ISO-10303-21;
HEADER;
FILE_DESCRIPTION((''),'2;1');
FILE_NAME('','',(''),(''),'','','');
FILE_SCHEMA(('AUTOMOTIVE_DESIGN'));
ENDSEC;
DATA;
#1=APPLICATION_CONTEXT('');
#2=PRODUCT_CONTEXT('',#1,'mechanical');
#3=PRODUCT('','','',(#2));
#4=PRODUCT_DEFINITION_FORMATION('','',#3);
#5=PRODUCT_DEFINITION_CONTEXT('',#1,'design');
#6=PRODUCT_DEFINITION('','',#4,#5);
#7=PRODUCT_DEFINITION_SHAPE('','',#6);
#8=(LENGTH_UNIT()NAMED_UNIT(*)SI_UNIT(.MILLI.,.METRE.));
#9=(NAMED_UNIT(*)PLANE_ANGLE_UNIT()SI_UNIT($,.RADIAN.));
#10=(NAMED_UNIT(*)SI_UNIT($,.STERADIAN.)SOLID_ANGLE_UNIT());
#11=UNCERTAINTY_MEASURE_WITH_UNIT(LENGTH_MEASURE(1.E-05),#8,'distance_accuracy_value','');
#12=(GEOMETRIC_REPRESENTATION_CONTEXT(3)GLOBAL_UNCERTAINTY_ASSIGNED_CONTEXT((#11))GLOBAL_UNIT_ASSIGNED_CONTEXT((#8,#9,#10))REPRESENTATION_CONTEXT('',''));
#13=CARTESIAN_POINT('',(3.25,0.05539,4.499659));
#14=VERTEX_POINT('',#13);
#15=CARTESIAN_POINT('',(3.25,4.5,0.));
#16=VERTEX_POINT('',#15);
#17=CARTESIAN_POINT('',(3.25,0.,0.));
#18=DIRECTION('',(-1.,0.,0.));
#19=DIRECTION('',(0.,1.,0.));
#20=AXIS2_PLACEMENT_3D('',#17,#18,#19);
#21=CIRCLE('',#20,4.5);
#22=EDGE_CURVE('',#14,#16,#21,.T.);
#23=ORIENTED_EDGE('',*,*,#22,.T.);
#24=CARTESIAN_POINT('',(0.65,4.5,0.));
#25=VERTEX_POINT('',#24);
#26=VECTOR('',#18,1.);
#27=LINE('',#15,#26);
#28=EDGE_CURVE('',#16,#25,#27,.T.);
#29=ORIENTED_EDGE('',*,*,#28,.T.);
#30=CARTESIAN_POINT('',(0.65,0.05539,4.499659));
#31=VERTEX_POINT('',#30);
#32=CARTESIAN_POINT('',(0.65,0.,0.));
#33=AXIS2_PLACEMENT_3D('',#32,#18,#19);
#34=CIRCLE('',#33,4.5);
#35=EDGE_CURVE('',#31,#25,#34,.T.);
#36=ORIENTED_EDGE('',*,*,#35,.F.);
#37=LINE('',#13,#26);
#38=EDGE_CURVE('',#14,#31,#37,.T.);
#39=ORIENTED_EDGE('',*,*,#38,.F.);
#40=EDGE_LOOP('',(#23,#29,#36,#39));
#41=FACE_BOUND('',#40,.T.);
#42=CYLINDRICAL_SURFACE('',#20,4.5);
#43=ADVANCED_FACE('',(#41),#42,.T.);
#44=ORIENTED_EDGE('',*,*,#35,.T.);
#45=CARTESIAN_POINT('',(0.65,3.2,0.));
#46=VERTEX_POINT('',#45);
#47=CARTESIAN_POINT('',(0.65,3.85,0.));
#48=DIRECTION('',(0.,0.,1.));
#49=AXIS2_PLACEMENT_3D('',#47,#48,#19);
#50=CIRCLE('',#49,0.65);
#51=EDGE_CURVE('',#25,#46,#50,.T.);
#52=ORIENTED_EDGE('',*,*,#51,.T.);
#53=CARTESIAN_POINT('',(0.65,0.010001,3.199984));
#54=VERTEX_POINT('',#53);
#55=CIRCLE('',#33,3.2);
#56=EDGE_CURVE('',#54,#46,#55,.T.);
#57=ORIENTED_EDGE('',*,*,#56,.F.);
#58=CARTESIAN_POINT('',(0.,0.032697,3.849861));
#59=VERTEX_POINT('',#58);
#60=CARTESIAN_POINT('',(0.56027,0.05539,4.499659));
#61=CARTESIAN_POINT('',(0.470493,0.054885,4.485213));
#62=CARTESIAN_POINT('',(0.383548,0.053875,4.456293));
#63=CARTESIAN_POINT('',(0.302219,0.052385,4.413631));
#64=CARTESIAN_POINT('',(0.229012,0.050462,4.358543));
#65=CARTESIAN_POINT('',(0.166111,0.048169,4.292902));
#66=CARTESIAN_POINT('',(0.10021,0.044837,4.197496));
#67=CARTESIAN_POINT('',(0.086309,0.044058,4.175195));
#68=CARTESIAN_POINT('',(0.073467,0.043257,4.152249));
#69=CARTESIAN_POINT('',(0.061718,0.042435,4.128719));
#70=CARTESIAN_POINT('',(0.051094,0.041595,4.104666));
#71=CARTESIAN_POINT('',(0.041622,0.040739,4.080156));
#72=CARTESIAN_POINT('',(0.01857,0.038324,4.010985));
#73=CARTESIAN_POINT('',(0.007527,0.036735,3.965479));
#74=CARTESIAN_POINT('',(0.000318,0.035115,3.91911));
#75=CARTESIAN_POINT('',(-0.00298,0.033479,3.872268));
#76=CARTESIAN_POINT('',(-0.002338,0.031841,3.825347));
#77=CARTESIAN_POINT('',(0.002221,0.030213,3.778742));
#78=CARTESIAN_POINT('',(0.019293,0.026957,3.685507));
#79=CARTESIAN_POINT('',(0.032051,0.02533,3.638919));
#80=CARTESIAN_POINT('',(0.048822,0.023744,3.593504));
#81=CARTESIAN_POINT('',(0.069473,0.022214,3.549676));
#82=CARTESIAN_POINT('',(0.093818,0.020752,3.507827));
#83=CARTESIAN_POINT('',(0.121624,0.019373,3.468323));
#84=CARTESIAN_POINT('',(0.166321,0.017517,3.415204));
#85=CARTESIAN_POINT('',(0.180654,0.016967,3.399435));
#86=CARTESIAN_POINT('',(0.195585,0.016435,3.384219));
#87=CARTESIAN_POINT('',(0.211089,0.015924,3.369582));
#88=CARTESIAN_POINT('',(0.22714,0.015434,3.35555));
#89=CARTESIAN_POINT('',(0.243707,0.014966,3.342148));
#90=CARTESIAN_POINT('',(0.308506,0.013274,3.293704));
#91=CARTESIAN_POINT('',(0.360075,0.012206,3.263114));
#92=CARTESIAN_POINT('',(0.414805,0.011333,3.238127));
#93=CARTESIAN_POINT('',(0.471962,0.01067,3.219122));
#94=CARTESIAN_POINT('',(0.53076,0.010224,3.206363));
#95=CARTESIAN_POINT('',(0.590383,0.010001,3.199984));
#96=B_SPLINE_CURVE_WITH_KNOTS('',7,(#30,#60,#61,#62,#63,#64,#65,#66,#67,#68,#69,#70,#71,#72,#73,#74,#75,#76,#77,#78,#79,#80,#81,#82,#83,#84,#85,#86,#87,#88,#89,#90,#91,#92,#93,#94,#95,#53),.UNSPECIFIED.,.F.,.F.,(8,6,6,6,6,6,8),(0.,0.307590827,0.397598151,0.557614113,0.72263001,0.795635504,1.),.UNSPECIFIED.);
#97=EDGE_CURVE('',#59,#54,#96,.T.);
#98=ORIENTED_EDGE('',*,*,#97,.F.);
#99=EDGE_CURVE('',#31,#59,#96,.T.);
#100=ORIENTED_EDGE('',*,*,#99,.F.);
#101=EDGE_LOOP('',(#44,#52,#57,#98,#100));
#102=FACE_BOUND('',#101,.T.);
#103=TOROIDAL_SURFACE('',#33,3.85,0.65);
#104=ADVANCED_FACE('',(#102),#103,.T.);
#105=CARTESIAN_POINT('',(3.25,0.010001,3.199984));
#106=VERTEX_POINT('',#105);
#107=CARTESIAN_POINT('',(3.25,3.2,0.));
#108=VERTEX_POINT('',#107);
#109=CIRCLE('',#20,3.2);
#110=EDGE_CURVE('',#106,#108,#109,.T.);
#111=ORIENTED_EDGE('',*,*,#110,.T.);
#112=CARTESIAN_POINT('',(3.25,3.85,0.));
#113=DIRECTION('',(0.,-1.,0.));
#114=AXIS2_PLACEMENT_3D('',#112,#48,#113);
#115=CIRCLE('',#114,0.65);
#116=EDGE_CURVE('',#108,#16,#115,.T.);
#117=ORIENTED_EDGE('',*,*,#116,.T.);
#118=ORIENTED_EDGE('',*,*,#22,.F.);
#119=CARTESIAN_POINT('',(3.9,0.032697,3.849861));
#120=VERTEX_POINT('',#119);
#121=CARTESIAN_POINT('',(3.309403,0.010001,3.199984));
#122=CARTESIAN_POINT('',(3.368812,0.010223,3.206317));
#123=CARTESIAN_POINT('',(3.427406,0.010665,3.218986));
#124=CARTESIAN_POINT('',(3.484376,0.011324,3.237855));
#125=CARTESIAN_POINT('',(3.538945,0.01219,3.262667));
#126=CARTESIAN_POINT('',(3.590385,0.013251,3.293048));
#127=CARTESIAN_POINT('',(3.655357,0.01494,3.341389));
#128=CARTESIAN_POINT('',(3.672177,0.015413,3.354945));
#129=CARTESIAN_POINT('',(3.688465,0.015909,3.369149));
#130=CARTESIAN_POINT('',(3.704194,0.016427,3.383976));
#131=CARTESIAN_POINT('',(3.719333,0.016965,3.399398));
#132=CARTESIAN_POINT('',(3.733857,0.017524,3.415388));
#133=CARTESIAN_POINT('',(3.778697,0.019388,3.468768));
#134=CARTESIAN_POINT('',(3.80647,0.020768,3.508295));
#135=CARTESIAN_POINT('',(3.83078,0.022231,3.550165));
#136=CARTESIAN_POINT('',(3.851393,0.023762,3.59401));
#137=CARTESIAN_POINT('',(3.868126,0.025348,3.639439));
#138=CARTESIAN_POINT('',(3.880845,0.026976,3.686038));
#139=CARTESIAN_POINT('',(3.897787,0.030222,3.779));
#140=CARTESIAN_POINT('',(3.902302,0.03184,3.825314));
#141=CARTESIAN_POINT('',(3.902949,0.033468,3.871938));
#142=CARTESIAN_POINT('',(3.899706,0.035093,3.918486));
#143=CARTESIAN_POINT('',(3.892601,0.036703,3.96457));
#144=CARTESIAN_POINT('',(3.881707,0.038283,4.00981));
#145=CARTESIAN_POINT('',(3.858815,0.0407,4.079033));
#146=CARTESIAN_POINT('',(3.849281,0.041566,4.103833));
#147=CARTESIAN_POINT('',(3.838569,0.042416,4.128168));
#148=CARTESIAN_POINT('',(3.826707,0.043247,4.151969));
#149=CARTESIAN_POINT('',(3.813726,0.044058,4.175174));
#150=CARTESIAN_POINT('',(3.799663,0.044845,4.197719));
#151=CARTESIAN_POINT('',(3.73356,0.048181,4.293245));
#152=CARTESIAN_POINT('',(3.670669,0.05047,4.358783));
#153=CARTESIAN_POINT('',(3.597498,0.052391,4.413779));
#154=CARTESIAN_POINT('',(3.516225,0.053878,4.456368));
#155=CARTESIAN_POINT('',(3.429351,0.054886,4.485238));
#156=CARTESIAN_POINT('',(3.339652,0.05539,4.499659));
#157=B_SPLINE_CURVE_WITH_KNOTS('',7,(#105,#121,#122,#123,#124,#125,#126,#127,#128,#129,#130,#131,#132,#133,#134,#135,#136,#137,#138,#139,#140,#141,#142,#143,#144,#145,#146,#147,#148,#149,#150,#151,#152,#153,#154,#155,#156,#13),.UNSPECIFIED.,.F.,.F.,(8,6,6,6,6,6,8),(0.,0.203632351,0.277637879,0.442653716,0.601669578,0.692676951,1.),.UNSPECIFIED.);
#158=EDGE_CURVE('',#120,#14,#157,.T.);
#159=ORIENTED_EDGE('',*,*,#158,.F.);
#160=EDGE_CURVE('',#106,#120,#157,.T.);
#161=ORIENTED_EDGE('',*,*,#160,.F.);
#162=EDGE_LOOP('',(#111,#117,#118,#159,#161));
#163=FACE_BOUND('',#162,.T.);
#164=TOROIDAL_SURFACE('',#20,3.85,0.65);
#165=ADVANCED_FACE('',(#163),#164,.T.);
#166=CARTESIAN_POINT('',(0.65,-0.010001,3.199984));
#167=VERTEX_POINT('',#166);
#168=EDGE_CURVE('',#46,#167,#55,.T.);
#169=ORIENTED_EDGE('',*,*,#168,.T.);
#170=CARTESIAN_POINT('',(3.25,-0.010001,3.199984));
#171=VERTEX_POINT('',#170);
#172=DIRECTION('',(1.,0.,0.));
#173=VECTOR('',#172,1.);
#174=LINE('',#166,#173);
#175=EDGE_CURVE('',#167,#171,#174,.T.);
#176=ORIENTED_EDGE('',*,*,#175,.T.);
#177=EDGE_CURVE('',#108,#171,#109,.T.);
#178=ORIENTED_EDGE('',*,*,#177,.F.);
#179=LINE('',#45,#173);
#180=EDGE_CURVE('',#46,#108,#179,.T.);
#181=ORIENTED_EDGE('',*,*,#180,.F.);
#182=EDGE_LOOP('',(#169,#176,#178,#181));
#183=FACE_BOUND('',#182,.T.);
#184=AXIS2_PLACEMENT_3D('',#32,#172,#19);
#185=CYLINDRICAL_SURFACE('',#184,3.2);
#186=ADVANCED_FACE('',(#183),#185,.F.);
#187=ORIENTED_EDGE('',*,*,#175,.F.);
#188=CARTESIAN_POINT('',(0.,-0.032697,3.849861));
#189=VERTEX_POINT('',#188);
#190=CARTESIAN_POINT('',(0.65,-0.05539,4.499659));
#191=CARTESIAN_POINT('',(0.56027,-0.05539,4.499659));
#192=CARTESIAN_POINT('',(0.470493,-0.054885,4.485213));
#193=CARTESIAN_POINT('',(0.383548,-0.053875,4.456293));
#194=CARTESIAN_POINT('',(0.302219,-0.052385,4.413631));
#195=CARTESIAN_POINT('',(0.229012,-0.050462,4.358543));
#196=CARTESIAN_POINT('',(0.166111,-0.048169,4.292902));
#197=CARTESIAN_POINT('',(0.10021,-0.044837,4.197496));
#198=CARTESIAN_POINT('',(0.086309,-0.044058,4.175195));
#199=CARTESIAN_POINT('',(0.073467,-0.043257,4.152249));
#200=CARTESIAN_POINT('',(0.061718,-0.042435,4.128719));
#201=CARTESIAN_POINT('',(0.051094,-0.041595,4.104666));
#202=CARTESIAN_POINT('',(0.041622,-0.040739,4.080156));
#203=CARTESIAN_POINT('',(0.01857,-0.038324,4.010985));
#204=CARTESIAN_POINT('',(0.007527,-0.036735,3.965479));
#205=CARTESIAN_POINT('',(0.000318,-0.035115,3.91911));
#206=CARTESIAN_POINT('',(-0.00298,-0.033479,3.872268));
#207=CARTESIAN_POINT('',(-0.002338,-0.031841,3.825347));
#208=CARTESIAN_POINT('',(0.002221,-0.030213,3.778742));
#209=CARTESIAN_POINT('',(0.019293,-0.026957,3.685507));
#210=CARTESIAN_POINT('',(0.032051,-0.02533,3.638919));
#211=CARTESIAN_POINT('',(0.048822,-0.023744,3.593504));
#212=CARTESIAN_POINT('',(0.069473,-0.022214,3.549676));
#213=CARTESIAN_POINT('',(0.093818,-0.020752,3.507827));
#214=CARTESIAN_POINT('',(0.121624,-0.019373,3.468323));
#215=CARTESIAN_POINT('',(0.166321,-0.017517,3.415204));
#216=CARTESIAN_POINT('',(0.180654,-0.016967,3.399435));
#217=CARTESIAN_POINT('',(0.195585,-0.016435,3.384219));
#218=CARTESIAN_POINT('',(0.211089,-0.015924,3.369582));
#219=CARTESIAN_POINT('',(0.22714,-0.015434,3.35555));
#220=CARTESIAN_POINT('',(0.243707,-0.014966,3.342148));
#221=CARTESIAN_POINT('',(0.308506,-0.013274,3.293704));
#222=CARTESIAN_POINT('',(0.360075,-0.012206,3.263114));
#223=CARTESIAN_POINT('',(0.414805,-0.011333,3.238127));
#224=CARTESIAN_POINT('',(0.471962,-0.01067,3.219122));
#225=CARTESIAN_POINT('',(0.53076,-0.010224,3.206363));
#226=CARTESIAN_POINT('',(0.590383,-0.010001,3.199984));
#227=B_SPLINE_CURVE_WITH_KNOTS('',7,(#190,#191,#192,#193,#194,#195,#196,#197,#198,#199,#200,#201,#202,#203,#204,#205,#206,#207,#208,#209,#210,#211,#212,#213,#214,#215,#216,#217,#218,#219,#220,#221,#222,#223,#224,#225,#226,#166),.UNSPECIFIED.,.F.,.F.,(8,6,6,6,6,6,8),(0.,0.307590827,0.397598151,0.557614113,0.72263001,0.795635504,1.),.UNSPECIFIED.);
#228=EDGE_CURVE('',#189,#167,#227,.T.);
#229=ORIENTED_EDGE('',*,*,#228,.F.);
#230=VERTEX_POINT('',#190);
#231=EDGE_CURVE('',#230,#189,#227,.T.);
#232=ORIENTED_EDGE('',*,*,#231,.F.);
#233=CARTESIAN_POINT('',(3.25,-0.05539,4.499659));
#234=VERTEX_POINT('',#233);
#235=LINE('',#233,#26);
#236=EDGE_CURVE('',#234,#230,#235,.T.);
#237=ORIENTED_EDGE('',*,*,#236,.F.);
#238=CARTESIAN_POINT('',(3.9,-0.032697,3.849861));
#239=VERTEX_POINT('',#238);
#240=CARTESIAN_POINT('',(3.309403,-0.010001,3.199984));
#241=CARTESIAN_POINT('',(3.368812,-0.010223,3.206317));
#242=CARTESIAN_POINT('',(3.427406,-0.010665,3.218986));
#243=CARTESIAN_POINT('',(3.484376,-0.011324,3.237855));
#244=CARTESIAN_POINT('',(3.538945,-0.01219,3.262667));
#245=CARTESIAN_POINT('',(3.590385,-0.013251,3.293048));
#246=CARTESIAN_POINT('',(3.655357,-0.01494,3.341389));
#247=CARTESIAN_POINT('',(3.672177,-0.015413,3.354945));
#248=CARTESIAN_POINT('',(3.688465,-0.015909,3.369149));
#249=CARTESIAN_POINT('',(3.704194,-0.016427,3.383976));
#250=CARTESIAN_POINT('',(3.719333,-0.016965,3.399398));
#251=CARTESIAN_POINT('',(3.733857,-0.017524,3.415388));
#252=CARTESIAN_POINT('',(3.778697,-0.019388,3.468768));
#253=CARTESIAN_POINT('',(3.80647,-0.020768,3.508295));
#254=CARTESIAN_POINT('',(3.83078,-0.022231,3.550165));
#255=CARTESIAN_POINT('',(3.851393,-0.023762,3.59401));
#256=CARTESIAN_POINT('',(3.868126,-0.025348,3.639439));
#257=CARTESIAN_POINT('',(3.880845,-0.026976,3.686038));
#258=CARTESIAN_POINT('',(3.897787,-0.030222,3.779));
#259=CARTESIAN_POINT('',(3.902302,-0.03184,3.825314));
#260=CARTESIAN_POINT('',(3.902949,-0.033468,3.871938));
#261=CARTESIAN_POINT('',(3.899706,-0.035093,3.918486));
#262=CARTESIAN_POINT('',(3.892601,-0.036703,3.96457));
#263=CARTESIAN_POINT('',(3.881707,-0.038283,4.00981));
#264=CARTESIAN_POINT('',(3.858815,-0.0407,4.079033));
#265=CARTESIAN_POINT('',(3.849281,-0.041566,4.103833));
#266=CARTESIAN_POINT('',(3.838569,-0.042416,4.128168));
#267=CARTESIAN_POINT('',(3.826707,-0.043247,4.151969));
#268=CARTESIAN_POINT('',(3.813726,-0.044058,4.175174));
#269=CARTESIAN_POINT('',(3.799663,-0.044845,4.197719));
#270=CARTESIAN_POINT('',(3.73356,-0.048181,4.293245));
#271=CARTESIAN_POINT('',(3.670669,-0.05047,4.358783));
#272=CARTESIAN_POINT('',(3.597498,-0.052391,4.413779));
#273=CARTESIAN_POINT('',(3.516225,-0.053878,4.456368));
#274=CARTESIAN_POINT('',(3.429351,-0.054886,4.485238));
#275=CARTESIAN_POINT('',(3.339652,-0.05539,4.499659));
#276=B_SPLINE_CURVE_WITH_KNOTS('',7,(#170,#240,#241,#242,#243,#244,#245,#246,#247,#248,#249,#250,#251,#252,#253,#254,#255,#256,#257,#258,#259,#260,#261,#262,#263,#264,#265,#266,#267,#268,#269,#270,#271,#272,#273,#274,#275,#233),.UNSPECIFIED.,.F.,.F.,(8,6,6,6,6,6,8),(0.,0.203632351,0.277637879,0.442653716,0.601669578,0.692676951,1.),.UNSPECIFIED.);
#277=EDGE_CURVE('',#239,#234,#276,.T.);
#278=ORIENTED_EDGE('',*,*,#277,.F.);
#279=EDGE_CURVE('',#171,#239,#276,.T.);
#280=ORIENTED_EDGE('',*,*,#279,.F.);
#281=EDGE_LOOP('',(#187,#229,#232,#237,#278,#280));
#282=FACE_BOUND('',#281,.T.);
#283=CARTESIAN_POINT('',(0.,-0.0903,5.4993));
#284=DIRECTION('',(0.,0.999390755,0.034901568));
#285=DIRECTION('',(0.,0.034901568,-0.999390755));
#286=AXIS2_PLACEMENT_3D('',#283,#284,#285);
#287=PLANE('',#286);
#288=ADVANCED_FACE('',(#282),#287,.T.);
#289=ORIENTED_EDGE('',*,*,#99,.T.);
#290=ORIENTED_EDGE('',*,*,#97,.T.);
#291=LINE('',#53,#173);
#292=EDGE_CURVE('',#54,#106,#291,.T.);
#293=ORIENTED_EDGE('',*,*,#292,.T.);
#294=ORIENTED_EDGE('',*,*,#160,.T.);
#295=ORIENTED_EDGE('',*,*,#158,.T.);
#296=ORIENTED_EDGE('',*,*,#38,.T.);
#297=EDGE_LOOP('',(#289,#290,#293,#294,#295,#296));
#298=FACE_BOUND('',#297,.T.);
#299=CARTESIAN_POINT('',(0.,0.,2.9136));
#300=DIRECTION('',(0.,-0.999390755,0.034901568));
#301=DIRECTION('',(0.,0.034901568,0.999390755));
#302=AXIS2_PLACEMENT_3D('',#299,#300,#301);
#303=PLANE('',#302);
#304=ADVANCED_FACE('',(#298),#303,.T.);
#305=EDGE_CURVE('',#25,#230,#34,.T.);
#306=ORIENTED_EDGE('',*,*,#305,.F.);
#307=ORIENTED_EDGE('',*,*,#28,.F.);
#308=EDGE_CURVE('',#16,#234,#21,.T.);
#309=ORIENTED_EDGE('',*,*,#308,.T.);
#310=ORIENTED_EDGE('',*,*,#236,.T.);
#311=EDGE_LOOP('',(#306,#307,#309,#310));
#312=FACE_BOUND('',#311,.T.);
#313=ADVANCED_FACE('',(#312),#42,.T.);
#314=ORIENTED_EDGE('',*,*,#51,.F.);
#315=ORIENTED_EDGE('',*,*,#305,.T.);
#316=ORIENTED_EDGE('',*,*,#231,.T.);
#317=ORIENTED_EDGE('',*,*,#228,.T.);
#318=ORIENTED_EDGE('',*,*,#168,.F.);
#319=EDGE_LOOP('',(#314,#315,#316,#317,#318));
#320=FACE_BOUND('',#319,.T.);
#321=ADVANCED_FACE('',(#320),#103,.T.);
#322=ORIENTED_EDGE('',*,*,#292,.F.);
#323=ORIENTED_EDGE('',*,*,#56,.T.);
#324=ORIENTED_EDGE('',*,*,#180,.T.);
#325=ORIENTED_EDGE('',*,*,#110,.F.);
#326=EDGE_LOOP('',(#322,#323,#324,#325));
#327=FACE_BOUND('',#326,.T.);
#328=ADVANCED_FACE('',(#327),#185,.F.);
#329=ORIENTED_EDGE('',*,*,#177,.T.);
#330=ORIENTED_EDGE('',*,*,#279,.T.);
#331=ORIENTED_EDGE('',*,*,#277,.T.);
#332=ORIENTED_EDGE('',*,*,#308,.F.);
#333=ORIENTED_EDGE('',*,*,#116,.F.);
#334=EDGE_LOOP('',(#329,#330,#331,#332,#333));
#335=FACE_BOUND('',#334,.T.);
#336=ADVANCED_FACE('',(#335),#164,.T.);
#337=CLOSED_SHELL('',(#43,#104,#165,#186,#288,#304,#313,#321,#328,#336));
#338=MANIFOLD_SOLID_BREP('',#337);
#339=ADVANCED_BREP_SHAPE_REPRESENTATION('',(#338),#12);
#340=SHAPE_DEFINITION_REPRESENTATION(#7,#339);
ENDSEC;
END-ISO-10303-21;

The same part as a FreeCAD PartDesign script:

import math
import FreeCAD as App
import Part
import Sketcher

V = App.Vector
Q = App.Units.Quantity

doc = App.newDocument("Part")
body = doc.addObject("PartDesign::Body", "Body")

sketch1 = doc.addObject("Sketcher::SketchObject", "Sketch")
body.addObject(sketch1)
sketch1.AttachmentSupport = (doc.XY_Plane, [""])
sketch1.MapMode = "FlatFace"
sketch1.addGeometry([
    Part.LineSegment(V(3.2, 4.5, 0), V(0.7, 4.5, 0)),
    Part.ArcOfCircle(Part.Circle(V(0.7, 3.9, 0), V(0, 0, 1), 0.6), math.radians(90), math.radians(270)),
    Part.LineSegment(V(0.7, 3.2, 0), V(3.2, 3.2, 0)),
    Part.ArcOfCircle(Part.Circle(V(3.2, 3.9, 0), V(0, 0, 1), 0.6), math.radians(-90), math.radians(90)),
], False)
sketch1.addConstraint([
    Sketcher.Constraint("Tangent", 0, 2, 1, 1),
    Sketcher.Constraint("Tangent", 1, 2, 2, 1),
    Sketcher.Constraint("Tangent", 2, 2, 3, 1),
    Sketcher.Constraint("Tangent", 3, 2, 0, 1),
    Sketcher.Constraint("Horizontal", 0),
    Sketcher.Constraint("Horizontal", 2),
    Sketcher.Constraint("Radius", 1, 0.65),
    Sketcher.Constraint("DistanceX", 0, 2, 0, 1, 2.6),
    Sketcher.Constraint("DistanceY", -1, 1, 0, 2, 4.5),
    Sketcher.Constraint("DistanceX", -1, 1, 1, 3, 0.65),
])
revolution = doc.addObject("PartDesign::Revolution", "Revolution")
body.addObject(revolution)
revolution.Profile = sketch1
revolution.ReferenceAxis = (sketch1, ["H_Axis"])
revolution.Angle = 360

sketch2 = doc.addObject("Sketcher::SketchObject", "Sketch001")
body.addObject(sketch2)
sketch2.AttachmentSupport = (doc.YZ_Plane, [""])
sketch2.MapMode = "FlatFace"
sketch2.addGeometry([
    Part.LineSegment(V(0, 2.91, 0), V(0.09, 5.5, 0)),
    Part.ArcOfCircle(Part.Circle(V(0, 0, 0), V(0, 0, 1), 5.5), math.radians(89.06), math.radians(90.94)),
    Part.LineSegment(V(-0.09, 5.5, 0), V(0, 2.91, 0)),
], False)
sketch2.addConstraint([
    Sketcher.Constraint("Coincident", 0, 2, 1, 1),
    Sketcher.Constraint("Coincident", 1, 2, 2, 1),
    Sketcher.Constraint("Coincident", 2, 2, 0, 1),
    Sketcher.Constraint("Coincident", 1, 3, -1, 1),
    Sketcher.Constraint("PointOnObject", 2, 2, -2),
    Sketcher.Constraint("Horizontal", 0, 2, 1, 2),
    Sketcher.Constraint("Radius", 1, 5.5),
    Sketcher.Constraint("Angle", 0, Q("88 deg")),
    Sketcher.Constraint("Distance", 0, 2.5873),
])
pocket1 = doc.addObject("PartDesign::Pocket", "Pocket")
body.addObject(pocket1)
pocket1.Profile = sketch2
pocket1.Length = 3.9
pocket1.Reversed = True

doc.recompute()
